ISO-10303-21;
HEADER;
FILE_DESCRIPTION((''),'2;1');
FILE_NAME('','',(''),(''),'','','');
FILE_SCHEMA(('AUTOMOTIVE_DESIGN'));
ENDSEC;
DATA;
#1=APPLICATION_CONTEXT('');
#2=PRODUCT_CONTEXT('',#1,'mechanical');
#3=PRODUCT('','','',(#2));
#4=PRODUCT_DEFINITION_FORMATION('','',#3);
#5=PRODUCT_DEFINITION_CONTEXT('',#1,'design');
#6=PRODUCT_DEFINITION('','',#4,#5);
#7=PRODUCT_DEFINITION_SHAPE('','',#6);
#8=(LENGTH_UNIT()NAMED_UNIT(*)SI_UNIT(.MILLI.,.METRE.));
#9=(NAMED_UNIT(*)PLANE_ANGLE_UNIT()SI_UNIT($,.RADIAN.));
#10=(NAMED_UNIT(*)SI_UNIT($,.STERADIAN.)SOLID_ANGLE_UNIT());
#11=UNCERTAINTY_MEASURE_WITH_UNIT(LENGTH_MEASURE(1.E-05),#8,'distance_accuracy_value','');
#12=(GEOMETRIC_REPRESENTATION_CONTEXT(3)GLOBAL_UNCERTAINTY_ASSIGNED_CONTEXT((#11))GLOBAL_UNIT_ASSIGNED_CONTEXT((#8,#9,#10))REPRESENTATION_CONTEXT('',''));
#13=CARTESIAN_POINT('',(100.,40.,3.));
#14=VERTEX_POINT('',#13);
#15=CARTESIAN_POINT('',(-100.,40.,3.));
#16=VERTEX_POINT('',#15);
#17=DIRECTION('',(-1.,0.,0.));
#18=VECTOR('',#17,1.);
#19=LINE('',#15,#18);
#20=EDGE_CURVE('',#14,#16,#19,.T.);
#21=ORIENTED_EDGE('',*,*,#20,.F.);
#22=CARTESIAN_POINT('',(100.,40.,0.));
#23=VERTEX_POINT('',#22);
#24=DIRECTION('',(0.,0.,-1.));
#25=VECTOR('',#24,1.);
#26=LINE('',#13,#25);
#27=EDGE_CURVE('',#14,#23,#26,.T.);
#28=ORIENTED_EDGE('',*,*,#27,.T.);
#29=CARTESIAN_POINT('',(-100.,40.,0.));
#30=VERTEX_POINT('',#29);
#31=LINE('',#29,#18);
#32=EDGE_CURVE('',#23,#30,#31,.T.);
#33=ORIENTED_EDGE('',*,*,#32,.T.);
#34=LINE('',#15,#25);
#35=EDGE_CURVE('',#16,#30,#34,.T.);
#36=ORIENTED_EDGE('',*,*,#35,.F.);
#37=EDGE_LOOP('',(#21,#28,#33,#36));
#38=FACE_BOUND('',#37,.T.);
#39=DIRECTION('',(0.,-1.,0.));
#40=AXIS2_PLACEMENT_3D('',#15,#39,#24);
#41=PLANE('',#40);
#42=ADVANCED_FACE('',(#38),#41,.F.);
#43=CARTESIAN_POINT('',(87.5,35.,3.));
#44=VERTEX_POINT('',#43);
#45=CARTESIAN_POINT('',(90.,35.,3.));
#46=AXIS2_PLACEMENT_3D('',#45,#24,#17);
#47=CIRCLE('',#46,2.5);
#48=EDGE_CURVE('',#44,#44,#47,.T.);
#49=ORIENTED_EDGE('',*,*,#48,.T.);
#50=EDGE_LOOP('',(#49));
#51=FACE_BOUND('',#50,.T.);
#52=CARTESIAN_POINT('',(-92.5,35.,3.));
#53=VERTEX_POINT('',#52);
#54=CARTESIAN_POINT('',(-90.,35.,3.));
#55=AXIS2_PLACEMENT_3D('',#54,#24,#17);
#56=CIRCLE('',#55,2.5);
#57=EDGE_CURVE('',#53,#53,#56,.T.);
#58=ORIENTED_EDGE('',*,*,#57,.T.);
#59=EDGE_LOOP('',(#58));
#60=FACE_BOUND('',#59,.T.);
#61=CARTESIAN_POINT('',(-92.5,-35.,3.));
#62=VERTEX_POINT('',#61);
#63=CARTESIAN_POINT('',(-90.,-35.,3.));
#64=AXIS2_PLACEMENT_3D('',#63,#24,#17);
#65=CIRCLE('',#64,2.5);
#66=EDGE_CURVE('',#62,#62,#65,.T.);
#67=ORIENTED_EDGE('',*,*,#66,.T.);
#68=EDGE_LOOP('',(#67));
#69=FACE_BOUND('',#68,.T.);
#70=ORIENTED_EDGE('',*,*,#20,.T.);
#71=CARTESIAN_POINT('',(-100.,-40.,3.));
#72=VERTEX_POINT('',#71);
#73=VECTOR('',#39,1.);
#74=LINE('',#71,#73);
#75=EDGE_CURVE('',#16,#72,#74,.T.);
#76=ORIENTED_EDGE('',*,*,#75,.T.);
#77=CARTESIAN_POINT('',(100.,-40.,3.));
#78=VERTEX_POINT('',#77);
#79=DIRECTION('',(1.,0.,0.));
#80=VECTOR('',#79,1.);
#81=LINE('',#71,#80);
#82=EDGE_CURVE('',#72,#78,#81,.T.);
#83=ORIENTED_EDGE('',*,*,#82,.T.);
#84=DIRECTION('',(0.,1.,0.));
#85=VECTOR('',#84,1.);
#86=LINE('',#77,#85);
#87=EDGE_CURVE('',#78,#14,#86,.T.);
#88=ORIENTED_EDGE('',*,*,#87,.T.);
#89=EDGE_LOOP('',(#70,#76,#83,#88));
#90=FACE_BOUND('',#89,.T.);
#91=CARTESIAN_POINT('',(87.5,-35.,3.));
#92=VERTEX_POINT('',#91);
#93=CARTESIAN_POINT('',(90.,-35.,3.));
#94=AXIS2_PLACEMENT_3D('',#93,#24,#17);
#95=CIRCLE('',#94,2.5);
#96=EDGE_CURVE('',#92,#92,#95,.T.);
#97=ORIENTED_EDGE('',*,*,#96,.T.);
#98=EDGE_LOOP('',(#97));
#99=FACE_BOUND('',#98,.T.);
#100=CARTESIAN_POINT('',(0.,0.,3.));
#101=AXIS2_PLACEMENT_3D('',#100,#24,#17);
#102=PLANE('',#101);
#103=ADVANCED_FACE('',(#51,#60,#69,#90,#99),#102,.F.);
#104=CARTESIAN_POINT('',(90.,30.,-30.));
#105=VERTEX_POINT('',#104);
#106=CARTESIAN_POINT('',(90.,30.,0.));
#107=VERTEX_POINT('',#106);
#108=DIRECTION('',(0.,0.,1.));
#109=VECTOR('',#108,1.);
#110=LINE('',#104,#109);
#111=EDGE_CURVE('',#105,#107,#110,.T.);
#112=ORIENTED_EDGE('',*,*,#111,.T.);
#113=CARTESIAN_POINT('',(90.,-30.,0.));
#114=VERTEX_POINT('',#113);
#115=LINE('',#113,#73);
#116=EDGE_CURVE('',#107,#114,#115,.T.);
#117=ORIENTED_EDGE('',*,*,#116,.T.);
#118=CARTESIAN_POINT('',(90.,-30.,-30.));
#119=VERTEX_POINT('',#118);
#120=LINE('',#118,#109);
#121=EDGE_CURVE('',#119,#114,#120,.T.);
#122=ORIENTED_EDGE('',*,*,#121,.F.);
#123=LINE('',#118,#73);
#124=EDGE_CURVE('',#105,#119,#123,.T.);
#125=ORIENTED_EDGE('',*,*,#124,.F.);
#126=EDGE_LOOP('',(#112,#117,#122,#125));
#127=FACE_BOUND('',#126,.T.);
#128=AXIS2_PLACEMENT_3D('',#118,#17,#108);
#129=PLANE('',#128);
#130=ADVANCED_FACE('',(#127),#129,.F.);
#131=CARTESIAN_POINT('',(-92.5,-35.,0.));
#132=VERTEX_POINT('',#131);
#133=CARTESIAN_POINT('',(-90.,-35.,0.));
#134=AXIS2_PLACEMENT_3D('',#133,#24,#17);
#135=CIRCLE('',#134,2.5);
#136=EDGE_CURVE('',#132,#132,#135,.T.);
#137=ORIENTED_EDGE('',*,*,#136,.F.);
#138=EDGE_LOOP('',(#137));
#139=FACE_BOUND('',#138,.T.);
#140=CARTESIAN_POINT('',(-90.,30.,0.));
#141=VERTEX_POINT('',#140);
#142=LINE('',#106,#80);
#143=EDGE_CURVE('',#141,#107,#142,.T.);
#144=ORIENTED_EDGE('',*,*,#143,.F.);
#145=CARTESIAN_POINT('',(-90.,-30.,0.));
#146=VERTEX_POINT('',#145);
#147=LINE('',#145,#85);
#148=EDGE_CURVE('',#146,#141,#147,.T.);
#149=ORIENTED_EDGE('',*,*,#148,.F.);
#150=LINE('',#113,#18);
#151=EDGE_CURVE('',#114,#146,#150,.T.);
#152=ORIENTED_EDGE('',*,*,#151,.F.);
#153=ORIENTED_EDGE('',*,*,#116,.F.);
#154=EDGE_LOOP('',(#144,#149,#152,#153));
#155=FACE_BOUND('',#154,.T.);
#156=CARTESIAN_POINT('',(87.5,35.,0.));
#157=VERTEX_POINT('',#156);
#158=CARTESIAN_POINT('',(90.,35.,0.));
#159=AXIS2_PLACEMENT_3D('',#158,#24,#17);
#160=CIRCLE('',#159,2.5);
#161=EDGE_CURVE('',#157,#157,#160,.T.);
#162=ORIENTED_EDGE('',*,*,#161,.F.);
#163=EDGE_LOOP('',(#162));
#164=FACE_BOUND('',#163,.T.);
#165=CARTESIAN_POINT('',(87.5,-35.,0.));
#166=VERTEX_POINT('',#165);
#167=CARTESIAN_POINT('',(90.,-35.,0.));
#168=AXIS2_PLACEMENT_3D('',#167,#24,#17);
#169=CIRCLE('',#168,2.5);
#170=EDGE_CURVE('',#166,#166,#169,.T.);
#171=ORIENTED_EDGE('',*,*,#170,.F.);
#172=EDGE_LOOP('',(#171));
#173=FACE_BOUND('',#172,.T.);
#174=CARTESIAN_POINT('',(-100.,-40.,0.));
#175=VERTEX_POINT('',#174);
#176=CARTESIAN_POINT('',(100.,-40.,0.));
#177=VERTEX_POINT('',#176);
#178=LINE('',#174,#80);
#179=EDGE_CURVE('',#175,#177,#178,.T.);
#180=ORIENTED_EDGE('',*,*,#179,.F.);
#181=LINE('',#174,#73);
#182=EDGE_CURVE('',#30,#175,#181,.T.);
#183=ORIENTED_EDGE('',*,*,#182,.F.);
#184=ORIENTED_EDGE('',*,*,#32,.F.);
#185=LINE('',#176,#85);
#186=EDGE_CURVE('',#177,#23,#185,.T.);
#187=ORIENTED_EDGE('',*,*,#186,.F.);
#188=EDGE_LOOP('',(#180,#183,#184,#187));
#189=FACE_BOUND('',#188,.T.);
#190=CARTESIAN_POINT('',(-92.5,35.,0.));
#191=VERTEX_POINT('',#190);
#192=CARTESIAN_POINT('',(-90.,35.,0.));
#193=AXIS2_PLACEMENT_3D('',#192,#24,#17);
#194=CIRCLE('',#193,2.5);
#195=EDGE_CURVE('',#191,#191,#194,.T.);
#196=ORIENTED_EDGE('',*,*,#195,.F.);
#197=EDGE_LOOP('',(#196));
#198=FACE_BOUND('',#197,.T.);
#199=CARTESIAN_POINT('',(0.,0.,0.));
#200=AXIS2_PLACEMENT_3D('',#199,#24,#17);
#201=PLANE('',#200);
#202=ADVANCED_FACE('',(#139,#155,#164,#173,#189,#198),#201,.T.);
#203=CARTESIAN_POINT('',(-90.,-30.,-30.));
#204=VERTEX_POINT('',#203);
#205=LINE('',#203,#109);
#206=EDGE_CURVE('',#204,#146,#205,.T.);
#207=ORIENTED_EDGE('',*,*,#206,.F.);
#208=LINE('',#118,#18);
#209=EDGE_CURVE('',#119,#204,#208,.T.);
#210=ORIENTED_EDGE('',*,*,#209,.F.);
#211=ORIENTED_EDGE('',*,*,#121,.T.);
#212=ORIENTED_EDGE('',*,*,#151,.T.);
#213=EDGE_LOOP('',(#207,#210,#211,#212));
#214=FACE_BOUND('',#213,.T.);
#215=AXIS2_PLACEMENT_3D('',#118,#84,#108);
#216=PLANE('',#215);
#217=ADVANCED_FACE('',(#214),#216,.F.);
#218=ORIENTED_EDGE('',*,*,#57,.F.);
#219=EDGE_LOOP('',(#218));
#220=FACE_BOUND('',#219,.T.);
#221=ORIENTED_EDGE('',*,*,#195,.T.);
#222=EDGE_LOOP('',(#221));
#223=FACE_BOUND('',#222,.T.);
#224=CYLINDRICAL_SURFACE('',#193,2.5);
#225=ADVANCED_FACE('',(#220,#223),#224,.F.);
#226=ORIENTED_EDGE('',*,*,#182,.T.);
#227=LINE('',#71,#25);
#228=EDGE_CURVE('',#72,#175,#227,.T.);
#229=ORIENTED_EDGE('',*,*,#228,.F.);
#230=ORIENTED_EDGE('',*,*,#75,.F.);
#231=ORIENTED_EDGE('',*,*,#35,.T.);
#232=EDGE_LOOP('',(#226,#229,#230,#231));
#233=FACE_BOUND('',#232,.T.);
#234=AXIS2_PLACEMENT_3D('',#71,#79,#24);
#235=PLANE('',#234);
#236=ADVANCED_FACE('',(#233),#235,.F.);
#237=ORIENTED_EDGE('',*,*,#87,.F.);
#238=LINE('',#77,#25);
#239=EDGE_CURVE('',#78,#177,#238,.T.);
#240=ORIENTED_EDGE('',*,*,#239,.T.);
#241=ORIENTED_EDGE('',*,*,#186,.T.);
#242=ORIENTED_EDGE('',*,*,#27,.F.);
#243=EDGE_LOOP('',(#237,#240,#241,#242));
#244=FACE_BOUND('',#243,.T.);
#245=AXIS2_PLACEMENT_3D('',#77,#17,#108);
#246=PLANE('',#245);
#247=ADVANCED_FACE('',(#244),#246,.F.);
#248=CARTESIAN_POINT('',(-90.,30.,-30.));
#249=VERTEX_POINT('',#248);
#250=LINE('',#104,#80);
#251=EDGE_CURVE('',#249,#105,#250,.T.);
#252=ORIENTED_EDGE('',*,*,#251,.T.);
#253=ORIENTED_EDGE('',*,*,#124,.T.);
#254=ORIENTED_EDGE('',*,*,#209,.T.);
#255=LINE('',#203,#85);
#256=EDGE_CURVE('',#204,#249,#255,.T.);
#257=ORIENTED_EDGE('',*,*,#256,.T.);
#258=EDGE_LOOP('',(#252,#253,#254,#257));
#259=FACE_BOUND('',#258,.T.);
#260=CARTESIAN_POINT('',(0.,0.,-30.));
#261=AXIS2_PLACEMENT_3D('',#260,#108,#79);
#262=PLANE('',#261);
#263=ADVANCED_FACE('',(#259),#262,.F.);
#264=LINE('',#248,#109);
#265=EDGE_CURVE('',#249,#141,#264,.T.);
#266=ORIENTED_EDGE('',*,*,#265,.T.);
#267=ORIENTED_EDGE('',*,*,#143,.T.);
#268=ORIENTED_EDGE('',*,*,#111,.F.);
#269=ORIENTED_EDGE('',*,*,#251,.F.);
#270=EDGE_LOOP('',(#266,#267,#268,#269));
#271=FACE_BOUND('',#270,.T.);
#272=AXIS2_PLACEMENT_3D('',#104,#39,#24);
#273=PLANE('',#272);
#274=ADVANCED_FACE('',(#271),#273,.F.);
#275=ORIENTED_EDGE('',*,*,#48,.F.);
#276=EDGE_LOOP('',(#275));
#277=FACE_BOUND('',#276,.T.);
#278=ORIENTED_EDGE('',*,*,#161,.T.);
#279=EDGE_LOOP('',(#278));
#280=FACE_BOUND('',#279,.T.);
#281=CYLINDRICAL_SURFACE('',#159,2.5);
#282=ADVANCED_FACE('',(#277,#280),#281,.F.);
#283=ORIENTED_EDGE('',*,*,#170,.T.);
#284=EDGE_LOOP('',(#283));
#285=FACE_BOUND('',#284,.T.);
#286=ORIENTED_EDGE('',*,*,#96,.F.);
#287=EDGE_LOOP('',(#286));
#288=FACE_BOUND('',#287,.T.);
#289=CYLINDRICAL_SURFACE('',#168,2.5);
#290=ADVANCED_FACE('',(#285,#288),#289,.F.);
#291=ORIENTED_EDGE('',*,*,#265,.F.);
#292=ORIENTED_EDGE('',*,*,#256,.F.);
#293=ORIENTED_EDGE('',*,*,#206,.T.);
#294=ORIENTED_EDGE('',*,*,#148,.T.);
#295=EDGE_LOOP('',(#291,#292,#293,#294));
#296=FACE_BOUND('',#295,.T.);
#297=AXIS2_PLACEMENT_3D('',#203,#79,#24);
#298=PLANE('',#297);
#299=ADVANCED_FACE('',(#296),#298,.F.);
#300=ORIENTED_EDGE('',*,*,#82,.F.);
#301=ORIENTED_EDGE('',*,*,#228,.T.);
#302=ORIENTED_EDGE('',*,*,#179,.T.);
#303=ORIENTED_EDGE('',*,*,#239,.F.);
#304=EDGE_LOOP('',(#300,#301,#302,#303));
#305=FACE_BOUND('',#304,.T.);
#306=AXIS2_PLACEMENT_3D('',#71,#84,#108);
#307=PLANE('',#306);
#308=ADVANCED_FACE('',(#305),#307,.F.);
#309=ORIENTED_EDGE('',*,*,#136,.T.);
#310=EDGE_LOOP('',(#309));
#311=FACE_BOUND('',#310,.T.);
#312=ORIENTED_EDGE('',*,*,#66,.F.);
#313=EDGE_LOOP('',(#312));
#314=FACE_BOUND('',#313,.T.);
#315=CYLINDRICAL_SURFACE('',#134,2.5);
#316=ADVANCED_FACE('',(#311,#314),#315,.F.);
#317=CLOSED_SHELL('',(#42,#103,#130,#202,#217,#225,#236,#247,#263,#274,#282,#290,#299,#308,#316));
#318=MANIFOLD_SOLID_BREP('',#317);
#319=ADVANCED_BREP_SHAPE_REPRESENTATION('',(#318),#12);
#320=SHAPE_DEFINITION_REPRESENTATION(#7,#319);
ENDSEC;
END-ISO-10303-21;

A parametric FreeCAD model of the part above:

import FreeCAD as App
import Part
import Sketcher

V = App.Vector


def add_polygon(sketch, points):
    """Adds a closed chain of lines whose ends are joined by coincident constraints."""
    first, n = sketch.GeometryCount, len(points)
    for a, b in zip(points, points[1:] + points[:1]):
        sketch.addGeometry(Part.LineSegment(App.Vector(*a, 0), App.Vector(*b, 0)), False)
    for i in range(n):
        sketch.addConstraint(Sketcher.Constraint("Coincident", first + i, 2, first + (i + 1) % n, 1))

doc = App.newDocument("Part")
body = doc.addObject("PartDesign::Body", "Body")

sketch1 = doc.addObject("Sketcher::SketchObject", "Sketch")
body.addObject(sketch1)
sketch1.AttachmentSupport = (doc.XY_Plane, [""])
sketch1.MapMode = "FlatFace"
add_polygon(sketch1, [(-100, 40), (-100, -40), (100, -40), (100, 40)])
sketch1.addConstraint([
    Sketcher.Constraint("Vertical", 0),
    Sketcher.Constraint("Horizontal", 1),
    Sketcher.Constraint("Vertical", 2),
    Sketcher.Constraint("Horizontal", 3),
    Sketcher.Constraint("Symmetric", 0, 2, 2, 2, -1, 1),
    Sketcher.Constraint("DistanceX", 1, 1, 1, 2, 200.0),
    Sketcher.Constraint("DistanceY", 0, 2, 0, 1, 80.0),
])
pad1 = doc.addObject("PartDesign::Pad", "Pad")
body.addObject(pad1)
pad1.Profile = sketch1
pad1.Length = 3

sketch2 = doc.addObject("Sketcher::SketchObject", "Sketch001")
body.addObject(sketch2)
sketch2.AttachmentSupport = (doc.XY_Plane, [""])
sketch2.MapMode = "FlatFace"
add_polygon(sketch2, [(90, 30), (90, -30), (-90, -30), (-90, 30)])
sketch2.addConstraint([
    Sketcher.Constraint("Vertical", 0),
    Sketcher.Constraint("Horizontal", 1),
    Sketcher.Constraint("Vertical", 2),
    Sketcher.Constraint("Horizontal", 3),
    Sketcher.Constraint("Symmetric", 0, 2, 2, 2, -1, 1),
    Sketcher.Constraint("DistanceX", 1, 2, 1, 1, 180.0),
    Sketcher.Constraint("DistanceY", 0, 2, 0, 1, 60.0),
])
pad2 = doc.addObject("PartDesign::Pad", "Pad001")
body.addObject(pad2)
pad2.Profile = sketch2
pad2.Length = 30
pad2.Reversed = True

sketch3 = doc.addObject("Sketcher::SketchObject", "Sketch002")
body.addObject(sketch3)
sketch3.AttachmentSupport = (doc.XY_Plane, [""])
sketch3.MapMode = "FlatFace"
sketch3.addGeometry([
    Part.Circle(V(90, 35, 0), V(0, 0, 1), 2.5),
    Part.Circle(V(90, -35, 0), V(0, 0, 1), 2.5),
    Part.Circle(V(-90, -35, 0), V(0, 0, 1), 2.5),
    Part.Circle(V(-90, 35, 0), V(0, 0, 1), 2.5),
], False)
sketch3.addConstraint([
    Sketcher.Constraint("Equal", 0, 1),
    Sketcher.Constraint("Equal", 1, 2),
    Sketcher.Constraint("Equal", 2, 3),
    Sketcher.Constraint("Symmetric", 0, 3, 2, 3, -1, 1),
    Sketcher.Constraint("Symmetric", 1, 3, 3, 3, -1, 1),
    Sketcher.Constraint("Symmetric", 1, 3, 2, 3, -2),
    Sketcher.Constraint("Diameter", 0, 5.0),
    Sketcher.Constraint("DistanceX", -1, 1, 0, 3, 90.0),
    Sketcher.Constraint("DistanceY", -1, 1, 0, 3, 35.0),
])
doc.recompute()
hole = doc.addObject("PartDesign::Hole", "Hole")
body.addObject(hole)
hole.Profile = sketch3
hole.ThreadType = "None"
hole.Diameter = 5
hole.DepthType = "Dimension"
hole.Depth = 15
hole.DrillPoint = "Angled"
hole.DrillPointAngle = 118
hole.Reversed = True

doc.recompute()
